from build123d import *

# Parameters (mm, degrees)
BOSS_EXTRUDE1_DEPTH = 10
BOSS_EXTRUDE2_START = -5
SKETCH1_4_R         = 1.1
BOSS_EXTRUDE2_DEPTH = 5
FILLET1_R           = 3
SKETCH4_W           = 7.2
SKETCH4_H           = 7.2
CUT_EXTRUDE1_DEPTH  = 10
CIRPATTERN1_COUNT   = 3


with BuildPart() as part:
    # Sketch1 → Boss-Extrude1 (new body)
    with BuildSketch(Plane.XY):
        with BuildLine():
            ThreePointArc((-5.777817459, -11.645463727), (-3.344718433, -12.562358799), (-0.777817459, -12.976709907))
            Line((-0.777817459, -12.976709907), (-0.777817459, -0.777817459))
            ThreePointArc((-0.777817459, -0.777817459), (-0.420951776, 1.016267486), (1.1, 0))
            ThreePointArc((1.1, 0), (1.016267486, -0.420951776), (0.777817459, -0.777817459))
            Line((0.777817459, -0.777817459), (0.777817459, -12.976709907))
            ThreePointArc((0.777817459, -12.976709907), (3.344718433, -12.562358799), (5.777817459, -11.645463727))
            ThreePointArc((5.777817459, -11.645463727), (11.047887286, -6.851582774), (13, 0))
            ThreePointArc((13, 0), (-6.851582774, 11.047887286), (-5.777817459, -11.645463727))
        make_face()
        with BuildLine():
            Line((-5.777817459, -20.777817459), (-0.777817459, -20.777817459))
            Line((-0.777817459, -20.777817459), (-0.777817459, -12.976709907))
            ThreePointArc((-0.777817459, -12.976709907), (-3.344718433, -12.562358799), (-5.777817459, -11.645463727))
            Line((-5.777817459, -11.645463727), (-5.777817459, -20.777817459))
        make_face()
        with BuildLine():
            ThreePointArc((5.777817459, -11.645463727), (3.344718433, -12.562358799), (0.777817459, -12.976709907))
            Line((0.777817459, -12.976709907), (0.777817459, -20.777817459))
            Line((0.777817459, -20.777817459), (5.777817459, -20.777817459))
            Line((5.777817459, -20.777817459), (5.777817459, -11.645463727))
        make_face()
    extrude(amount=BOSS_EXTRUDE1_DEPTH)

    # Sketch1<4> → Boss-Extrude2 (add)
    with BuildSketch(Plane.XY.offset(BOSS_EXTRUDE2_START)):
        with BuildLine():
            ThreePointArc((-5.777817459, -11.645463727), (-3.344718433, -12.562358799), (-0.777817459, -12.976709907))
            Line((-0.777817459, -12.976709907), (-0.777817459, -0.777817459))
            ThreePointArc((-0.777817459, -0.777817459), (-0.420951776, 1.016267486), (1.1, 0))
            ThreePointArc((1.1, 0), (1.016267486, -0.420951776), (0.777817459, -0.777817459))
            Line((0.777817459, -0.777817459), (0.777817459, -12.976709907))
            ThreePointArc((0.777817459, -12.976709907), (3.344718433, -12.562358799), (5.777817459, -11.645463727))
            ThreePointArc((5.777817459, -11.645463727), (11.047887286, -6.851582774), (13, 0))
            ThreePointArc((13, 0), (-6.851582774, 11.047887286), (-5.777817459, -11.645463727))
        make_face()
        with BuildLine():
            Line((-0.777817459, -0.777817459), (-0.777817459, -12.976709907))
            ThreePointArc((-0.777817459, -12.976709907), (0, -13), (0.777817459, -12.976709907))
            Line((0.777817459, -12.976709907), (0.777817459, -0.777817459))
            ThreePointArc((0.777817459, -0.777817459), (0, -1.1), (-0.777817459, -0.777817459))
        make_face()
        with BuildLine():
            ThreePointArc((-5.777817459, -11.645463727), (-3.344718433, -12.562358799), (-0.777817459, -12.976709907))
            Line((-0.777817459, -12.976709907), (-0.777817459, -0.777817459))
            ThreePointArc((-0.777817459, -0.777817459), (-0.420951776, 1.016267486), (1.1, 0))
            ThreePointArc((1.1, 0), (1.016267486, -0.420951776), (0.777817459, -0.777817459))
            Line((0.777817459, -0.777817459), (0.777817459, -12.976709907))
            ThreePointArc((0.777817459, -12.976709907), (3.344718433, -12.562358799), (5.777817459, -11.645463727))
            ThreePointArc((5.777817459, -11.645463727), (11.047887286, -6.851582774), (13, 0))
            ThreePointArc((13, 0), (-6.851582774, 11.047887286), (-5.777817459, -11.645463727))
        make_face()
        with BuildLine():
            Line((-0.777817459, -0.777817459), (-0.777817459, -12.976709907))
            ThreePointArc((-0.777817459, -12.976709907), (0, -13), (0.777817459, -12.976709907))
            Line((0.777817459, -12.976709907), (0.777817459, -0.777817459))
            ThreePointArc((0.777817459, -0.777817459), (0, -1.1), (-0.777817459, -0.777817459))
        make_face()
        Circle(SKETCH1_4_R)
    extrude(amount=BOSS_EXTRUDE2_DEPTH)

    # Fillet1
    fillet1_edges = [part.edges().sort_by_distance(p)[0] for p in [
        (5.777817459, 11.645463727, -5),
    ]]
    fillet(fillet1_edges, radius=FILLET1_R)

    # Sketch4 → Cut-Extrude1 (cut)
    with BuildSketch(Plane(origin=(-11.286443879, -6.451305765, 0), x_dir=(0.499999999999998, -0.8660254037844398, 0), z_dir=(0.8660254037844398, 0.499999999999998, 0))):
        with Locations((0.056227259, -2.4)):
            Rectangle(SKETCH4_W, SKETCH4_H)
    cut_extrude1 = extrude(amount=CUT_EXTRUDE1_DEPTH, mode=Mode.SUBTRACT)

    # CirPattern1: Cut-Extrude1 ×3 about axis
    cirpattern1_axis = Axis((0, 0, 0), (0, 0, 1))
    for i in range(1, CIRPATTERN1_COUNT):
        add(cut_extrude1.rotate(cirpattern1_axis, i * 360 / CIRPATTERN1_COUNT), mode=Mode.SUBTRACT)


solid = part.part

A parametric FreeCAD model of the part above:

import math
import FreeCAD as App
import Part
import Sketcher
Q = App.Units.Quantity


def edges_at(feature, points):
    """Names of the edges that pass closest to the given points."""
    edges = feature.Shape.Edges
    near = lambda p: min(range(len(edges)), key=lambda i: edges[i].distToShape(Part.Vertex(*p))[0])
    return sorted({f"Edge{near(p) + 1}" for p in points})


def add_polygon(sketch, points):
    """Adds a closed chain of lines whose ends are joined by coincident constraints."""
    first, n = sketch.GeometryCount, len(points)
    for a, b in zip(points, points[1:] + points[:1]):
        sketch.addGeometry(Part.LineSegment(App.Vector(*a, 0), App.Vector(*b, 0)), False)
    for i in range(n):
        sketch.addConstraint(Sketcher.Constraint("Coincident", first + i, 2, first + (i + 1) % n, 1))

doc = App.newDocument("Part")
body = doc.addObject("PartDesign::Body", "Body")

# Sketch on XY plane
sketch1 = doc.addObject("Sketcher::SketchObject", "Sketch")
body.addObject(sketch1)
sketch1.AttachmentSupport = (doc.XY_Plane, [""])
sketch1.MapMode = "FlatFace"
sketch1.addGeometry([
    Part.ArcOfCircle(Part.Circle(App.Vector(0, 0, 0), App.Vector(0, 0, 1), 1.1), math.radians(0), math.radians(225)),  # 0
    Part.ArcOfCircle(Part.Circle(App.Vector(0, 0, 0), App.Vector(0, 0, 1), 1.1), math.radians(-45), math.radians(0)),  # 1
    Part.LineSegment(App.Vector(0.777817, -0.777817, 0), App.Vector(0.777817, -20.777817, 0)),  # 2
    Part.LineSegment(App.Vector(0.777817, -20.777817, 0), App.Vector(5.777817, -20.777817, 0)),  # 3
    Part.LineSegment(App.Vector(5.777817, -20.777817, 0), App.Vector(5.777817, -11.645464, 0)),  # 4
    Part.ArcOfCircle(Part.Circle(App.Vector(0, 0, 0), App.Vector(0, 0, 1), 13), math.radians(-63.612005), math.radians(0)),  # 5
    Part.ArcOfCircle(Part.Circle(App.Vector(0, 0, 0), App.Vector(0, 0, 1), 13), math.radians(0), math.radians(243.612005)),  # 6
    Part.LineSegment(App.Vector(-5.777817, -11.645464, 0), App.Vector(-5.777817, -20.777817, 0)),  # 7
    Part.LineSegment(App.Vector(-5.777817, -20.777817, 0), App.Vector(-0.777817, -20.777817, 0)),  # 8
    Part.LineSegment(App.Vector(-0.777817, -20.777817, 0), App.Vector(-0.777817, -0.777817, 0)),  # 9
], False)
sketch1.addConstraint([
    Sketcher.Constraint("Tangent", 0, 1, 1, 2),
    Sketcher.Constraint("Coincident", 1, 1, 2, 1),
    Sketcher.Constraint("Coincident", 2, 2, 3, 1),
    Sketcher.Constraint("Coincident", 3, 2, 4, 1),
    Sketcher.Constraint("Coincident", 4, 2, 5, 1),
    Sketcher.Constraint("Tangent", 5, 2, 6, 1),
    Sketcher.Constraint("Coincident", 6, 2, 7, 1),
    Sketcher.Constraint("Coincident", 7, 2, 8, 1),
    Sketcher.Constraint("Coincident", 8, 2, 9, 1),
    Sketcher.Constraint("Coincident", 9, 2, 0, 2),
    Sketcher.Constraint("Vertical", 2),
    Sketcher.Constraint("Horizontal", 3),
    Sketcher.Constraint("Vertical", 4),
    Sketcher.Constraint("Vertical", 7),
    Sketcher.Constraint("Horizontal", 8),
    Sketcher.Constraint("Vertical", 9),
    Sketcher.Constraint("Coincident", 0, 3, -1, 1),
    Sketcher.Constraint("Coincident", 5, 3, -1, 1),
    Sketcher.Constraint("Equal", 0, 1),
    Sketcher.Constraint("Equal", 5, 6),
    Sketcher.Constraint("Symmetric", 3, 2, 7, 2, -2),
    Sketcher.Constraint("PointOnObject", 0, 1, -1),
    Sketcher.Constraint("PointOnObject", 5, 2, -1),
    Sketcher.Constraint("Horizontal", 1, 1, 9, 2),
    Sketcher.Constraint("Radius", 5, Q("13 mm")),
    Sketcher.Constraint("Radius", 0, Q("1.1 mm")),
    Sketcher.Constraint("DistanceX", 3, 1, 3, 2, Q("5 mm")),
    Sketcher.Constraint("DistanceY", 2, 2, 2, 1, Q("20 mm")),
    Sketcher.Constraint("DistanceY", 4, 1, 4, 2, Q("9.132354 mm")),
])
pad1 = doc.addObject("PartDesign::Pad", "Pad")
body.addObject(pad1)
pad1.Profile = sketch1
pad1.Length = 10

# Sketch on XY plane
sketch2 = doc.addObject("Sketcher::SketchObject", "Sketch001")
body.addObject(sketch2)
sketch2.AttachmentSupport = (doc.XY_Plane, [""])
sketch2.MapMode = "FlatFace"
sketch2.AttachmentOffset = App.Placement(App.Vector(0, 0, -5), App.Rotation())
sketch2.addGeometry([
    Part.ArcOfCircle(Part.Circle(App.Vector(0, 0, 0), App.Vector(0, 0, 1), 13), math.radians(-63.612005), math.radians(0)),  # 0
    Part.ArcOfCircle(Part.Circle(App.Vector(0, 0, 0), App.Vector(0, 0, 1), 13), math.radians(0), math.radians(243.612005)),  # 1
    Part.ArcOfCircle(Part.Circle(App.Vector(0, 0, 0), App.Vector(0, 0, 1), 13), math.radians(-116.387995), math.radians(-93.430176)),  # 2
    Part.ArcOfCircle(Part.Circle(App.Vector(0, 0, 0), App.Vector(0, 0, 1), 13), math.radians(-93.430176), math.radians(-86.569824)),  # 3
    Part.ArcOfCircle(Part.Circle(App.Vector(0, 0, 0), App.Vector(0, 0, 1), 13), math.radians(-86.569824), math.radians(-63.612005)),  # 4
], False)
sketch2.addConstraint([
    Sketcher.Constraint("Tangent", 0, 2, 1, 1),
    Sketcher.Constraint("Tangent", 1, 2, 2, 1),
    Sketcher.Constraint("Tangent", 2, 2, 3, 1),
    Sketcher.Constraint("Tangent", 3, 2, 4, 1),
    Sketcher.Constraint("Tangent", 4, 2, 0, 1),
    Sketcher.Constraint("Coincident", 0, 3, -1, 1),
    Sketcher.Constraint("Coincident", 2, 3, -1, 1),
    Sketcher.Constraint("PointOnObject", 0, 2, -1),
    Sketcher.Constraint("Horizontal", 2, 2, 3, 2),
    Sketcher.Constraint("Horizontal", 1, 2, 4, 2),
    Sketcher.Constraint("Radius", 0, Q("13 mm")),
    Sketcher.Constraint("DistanceX", 1, 2, 2, 2, Q("5 mm")),
    Sketcher.Constraint("DistanceY", 2, 2, -1, 1, Q("12.97671 mm")),
])
pad2 = doc.addObject("PartDesign::Pad", "Pad001")
body.addObject(pad2)
pad2.Profile = sketch2
pad2.Length = 5
doc.recompute()

fillet = doc.addObject("PartDesign::Fillet", "Fillet")
body.addObject(fillet)
fillet.Base = (pad2, edges_at(pad2, [(-6.852, 11.048, -5)]))
fillet.Radius = 3

# Sketch on an angled plane
sketch3 = doc.addObject("Sketcher::SketchObject", "Sketch002")
body.addObject(sketch3)
sketch3.Placement = App.Placement(App.Vector(-11.286444, -6.451306, 0), App.Rotation(App.Vector(0.5, -0.866025404, 0), App.Vector(0, 0, -1), App.Vector(0.866025404, 0.5, 0), "ZXY"))
add_polygon(sketch3, [(-3.543773, 1.2), (-3.543773, -6), (3.656227, -6), (3.656227, 1.2)])  # lines 0-3
sketch3.addConstraint([
    Sketcher.Constraint("Vertical", 0),
    Sketcher.Constraint("Horizontal", 1),
    Sketcher.Constraint("Vertical", 2),
    Sketcher.Constraint("Horizontal", 3),
    Sketcher.Constraint("Equal", 3, 0),
    Sketcher.Constraint("DistanceX", 1, 1, 1, 2, Q("7.2 mm")),
    Sketcher.Constraint("DistanceY", 0, 2, -1, 1, Q("6 mm")),
    Sketcher.Constraint("DistanceX", 0, 2, -1, 1, Q("3.543773 mm")),
])
pocket1 = doc.addObject("PartDesign::Pocket", "Pocket")
body.addObject(pocket1)
pocket1.Profile = sketch3
pocket1.Length = 10
pocket1.Reversed = True
doc.recompute()

polarpattern = doc.addObject("PartDesign::PolarPattern", "PolarPattern")
body.addObject(polarpattern)
polarpattern.Originals = [pocket1]
polarpattern.Axis = (doc.Z_Axis, [""])
polarpattern.Angle = 360
polarpattern.Occurrences = 3
body.Tip = polarpattern

doc.recompute()
